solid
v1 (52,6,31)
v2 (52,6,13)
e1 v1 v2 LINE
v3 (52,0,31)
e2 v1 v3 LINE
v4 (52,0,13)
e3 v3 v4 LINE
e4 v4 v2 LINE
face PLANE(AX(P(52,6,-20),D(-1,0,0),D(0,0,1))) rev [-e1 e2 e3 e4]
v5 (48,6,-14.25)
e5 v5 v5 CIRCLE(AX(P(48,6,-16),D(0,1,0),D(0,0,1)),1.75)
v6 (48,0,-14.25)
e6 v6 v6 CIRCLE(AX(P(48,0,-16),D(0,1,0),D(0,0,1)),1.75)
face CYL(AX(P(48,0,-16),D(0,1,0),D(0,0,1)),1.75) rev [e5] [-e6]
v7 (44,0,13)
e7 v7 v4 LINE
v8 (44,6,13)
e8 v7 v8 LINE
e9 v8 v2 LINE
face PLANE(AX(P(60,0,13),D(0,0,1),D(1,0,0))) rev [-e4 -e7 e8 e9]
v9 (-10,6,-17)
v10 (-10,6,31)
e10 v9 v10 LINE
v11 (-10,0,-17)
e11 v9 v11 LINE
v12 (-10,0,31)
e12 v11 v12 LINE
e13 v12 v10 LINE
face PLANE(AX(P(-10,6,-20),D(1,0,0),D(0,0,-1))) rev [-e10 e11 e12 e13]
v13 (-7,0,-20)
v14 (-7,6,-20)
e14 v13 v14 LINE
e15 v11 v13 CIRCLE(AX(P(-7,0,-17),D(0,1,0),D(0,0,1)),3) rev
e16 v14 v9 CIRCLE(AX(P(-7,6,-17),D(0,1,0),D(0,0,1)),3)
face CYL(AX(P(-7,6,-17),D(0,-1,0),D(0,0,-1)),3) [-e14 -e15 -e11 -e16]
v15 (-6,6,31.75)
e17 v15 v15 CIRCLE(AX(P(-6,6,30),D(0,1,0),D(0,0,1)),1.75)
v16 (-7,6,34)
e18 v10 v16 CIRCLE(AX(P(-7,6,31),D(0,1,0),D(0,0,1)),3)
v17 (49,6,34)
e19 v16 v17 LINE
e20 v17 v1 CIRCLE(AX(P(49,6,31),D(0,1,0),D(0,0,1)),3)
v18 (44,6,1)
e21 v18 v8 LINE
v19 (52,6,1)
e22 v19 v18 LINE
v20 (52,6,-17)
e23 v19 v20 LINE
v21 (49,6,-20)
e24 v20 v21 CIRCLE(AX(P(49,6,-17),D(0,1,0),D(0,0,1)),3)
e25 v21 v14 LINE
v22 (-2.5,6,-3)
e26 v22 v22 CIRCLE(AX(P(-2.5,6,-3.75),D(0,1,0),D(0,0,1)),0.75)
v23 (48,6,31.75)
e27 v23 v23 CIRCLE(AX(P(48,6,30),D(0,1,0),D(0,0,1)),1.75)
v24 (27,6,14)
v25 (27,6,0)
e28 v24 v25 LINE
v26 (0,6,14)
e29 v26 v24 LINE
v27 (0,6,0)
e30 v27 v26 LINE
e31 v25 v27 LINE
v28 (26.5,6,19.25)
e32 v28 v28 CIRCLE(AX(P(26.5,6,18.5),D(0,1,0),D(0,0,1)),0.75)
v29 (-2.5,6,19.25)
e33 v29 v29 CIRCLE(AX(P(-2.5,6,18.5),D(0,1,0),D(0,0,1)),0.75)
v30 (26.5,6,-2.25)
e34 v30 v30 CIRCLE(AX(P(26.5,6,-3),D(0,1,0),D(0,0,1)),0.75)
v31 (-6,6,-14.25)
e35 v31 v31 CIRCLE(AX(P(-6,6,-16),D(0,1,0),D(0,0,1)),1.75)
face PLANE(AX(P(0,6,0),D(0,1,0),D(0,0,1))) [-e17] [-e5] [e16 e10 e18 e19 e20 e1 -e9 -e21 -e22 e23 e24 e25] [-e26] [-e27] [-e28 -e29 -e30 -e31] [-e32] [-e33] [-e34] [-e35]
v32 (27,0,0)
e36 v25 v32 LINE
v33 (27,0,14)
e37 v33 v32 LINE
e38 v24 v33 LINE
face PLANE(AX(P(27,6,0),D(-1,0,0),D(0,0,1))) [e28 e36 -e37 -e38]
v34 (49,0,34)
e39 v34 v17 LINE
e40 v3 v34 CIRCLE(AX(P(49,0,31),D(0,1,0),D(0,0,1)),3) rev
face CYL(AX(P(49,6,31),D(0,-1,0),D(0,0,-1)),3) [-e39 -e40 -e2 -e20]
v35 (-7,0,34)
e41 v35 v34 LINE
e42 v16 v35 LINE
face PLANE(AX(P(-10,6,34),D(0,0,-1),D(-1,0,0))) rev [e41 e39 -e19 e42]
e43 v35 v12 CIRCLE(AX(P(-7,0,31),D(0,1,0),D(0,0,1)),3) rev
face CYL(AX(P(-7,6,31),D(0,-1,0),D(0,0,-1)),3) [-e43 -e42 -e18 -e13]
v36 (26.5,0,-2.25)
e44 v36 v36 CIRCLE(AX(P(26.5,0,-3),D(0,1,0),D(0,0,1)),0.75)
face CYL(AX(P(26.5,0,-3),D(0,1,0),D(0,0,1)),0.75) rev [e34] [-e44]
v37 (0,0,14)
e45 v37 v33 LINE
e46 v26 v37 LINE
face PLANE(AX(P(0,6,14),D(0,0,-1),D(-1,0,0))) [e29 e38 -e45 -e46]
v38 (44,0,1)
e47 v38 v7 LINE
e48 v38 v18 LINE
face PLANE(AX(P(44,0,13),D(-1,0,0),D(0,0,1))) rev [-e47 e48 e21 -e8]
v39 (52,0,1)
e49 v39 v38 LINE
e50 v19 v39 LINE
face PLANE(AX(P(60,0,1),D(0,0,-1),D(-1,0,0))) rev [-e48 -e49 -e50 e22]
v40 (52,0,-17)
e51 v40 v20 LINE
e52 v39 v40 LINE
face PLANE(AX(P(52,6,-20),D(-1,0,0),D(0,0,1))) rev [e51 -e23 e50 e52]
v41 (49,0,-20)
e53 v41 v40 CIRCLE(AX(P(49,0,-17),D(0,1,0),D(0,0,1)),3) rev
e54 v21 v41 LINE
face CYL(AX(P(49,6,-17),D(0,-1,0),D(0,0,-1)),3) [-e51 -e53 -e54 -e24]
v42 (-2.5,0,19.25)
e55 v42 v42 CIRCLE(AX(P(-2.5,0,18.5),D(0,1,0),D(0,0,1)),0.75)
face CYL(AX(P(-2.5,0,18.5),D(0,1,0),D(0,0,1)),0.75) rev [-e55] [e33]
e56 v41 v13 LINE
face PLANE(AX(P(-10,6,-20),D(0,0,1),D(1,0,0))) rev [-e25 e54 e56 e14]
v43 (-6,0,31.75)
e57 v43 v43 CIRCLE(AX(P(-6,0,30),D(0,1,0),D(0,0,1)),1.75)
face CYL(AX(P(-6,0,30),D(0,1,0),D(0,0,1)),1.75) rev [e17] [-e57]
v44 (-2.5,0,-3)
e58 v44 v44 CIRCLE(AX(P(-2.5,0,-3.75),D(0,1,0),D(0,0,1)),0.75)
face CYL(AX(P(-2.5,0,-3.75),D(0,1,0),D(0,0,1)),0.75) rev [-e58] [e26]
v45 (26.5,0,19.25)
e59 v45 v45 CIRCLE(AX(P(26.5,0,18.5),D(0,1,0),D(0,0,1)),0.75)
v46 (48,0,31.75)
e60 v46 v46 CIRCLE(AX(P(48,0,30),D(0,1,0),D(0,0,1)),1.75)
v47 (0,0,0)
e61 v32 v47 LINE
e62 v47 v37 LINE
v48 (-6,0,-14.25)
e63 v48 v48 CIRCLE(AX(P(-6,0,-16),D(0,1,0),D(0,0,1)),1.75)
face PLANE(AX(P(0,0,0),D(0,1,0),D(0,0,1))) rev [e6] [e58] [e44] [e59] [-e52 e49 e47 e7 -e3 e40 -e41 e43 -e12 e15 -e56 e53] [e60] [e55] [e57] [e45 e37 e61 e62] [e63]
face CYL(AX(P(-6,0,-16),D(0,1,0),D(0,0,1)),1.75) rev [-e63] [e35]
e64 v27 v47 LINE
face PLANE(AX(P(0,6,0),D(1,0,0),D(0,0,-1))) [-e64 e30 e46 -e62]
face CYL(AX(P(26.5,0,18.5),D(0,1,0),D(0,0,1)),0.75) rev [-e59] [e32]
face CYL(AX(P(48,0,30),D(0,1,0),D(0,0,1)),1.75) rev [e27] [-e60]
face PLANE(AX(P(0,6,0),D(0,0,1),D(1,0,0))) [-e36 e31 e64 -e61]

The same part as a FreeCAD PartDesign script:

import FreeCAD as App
import Part
import Sketcher

V = App.Vector
Q = App.Units.Quantity


def edges_at(feature, points):
    """Names of the edges that pass closest to the given points."""
    edges = feature.Shape.Edges
    near = lambda p: min(range(len(edges)), key=lambda i: edges[i].distToShape(Part.Vertex(*p))[0])
    return sorted({f"Edge{near(p) + 1}" for p in points})


def add_polygon(sketch, points):
    """Adds a closed chain of lines whose ends are joined by coincident constraints."""
    first, n = sketch.GeometryCount, len(points)
    for a, b in zip(points, points[1:] + points[:1]):
        sketch.addGeometry(Part.LineSegment(App.Vector(*a, 0), App.Vector(*b, 0)), False)
    for i in range(n):
        sketch.addConstraint(Sketcher.Constraint("Coincident", first + i, 2, first + (i + 1) % n, 1))

doc = App.newDocument("Part")
body = doc.addObject("PartDesign::Body", "Body")

# Sketch on XZ plane
sketch1 = body.newObject("Sketcher::SketchObject", "Sketch")
sketch1.AttachmentSupport = (doc.getObject("XZ_Plane"), [""])
sketch1.MapMode = "FlatFace"
add_polygon(sketch1, [(-10, -20), (-10, 34), (52, 34), (52, -20)])  # lines 0-3
add_polygon(sketch1, [(27, 14), (0, 14), (0, 0), (27, 0)])  # lines 4-7
sketch1.addConstraint([
    Sketcher.Constraint("Vertical", 0),
    Sketcher.Constraint("Horizontal", 1),
    Sketcher.Constraint("Vertical", 2),
    Sketcher.Constraint("Horizontal", 3),
    Sketcher.Constraint("Horizontal", 4),
    Sketcher.Constraint("Vertical", 5),
    Sketcher.Constraint("Horizontal", 6),
    Sketcher.Constraint("Vertical", 7),
    Sketcher.Constraint("Coincident", 5, 2, -1, 1),
    Sketcher.Constraint("DistanceX", 1, 1, 1, 2, Q("62 mm")),
    Sketcher.Constraint("DistanceX", 4, 2, 4, 1, Q("27 mm")),
    Sketcher.Constraint("DistanceY", 0, 1, 0, 2, Q("54 mm")),
    Sketcher.Constraint("DistanceY", 5, 2, 5, 1, Q("14 mm")),
    Sketcher.Constraint("DistanceX", 0, 2, -1, 1, Q("10 mm")),
    Sketcher.Constraint("DistanceY", -1, 1, 0, 2, Q("34 mm")),
])
pad1 = body.newObject("PartDesign::Pad", "Pad")
pad1.Profile = sketch1
pad1.Length = 6
pad1.Reversed = True

# Sketch on XZ plane
sketch2 = body.newObject("Sketcher::SketchObject", "Sketch001")
sketch2.AttachmentSupport = (doc.getObject("XZ_Plane"), [""])
sketch2.MapMode = "FlatFace"
sketch2.AttachmentOffset = App.Placement(V(0, 0, -6), App.Rotation())
sketch2.addGeometry([
    Part.Circle(V(-2.5, -3.8, 0), V(0, 0, 1), 0.8),
    Part.Circle(V(-2.5, 18.5, 0), V(0, 0, 1), 0.8),
    Part.Circle(V(26.5, -3, 0), V(0, 0, 1), 0.8),
    Part.Circle(V(26.5, 18.5, 0), V(0, 0, 1), 0.8),
], False)
sketch2.addConstraint([
    Sketcher.Constraint("Equal", 0, 1),
    Sketcher.Constraint("Equal", 1, 2),
    Sketcher.Constraint("Equal", 2, 3),
    Sketcher.Constraint("Horizontal", 1, 3, 3, 3),
    Sketcher.Constraint("Vertical", 0, 3, 1, 3),
    Sketcher.Constraint("Vertical", 2, 3, 3, 3),
    Sketcher.Constraint("Diameter", 0, Q("1.5 mm")),
    Sketcher.Constraint("DistanceY", 2, 3, -1, 1, Q("3 mm")),
    Sketcher.Constraint("DistanceX", 0, 3, 2, 3, Q("29 mm")),
    Sketcher.Constraint("DistanceX", 0, 3, -1, 1, Q("2.5 mm")),
    Sketcher.Constraint("DistanceY", -1, 1, 1, 3, Q("18.5 mm")),
    Sketcher.Constraint("DistanceY", 0, 3, -1, 1, Q("3.75 mm")),
])
pocket1 = body.newObject("PartDesign::Pocket", "Pocket")
pocket1.Profile = sketch2
pocket1.Type = "ThroughAll"
pocket1.Reversed = True

# Sketch on XZ plane
sketch3 = body.newObject("Sketcher::SketchObject", "Sketch002")
sketch3.AttachmentSupport = (doc.getObject("XZ_Plane"), [""])
sketch3.MapMode = "FlatFace"
sketch3.AttachmentOffset = App.Placement(V(0, 0, -6), App.Rotation())
sketch3.addGeometry([
    Part.Circle(V(-6, -16, 0), V(0, 0, 1), 1.8),
    Part.Circle(V(-6, 30, 0), V(0, 0, 1), 1.8),
    Part.Circle(V(48, -16, 0), V(0, 0, 1), 1.8),
    Part.Circle(V(48, 30, 0), V(0, 0, 1), 1.8),
], False)
sketch3.addConstraint([
    Sketcher.Constraint("Equal", 0, 1),
    Sketcher.Constraint("Equal", 1, 2),
    Sketcher.Constraint("Equal", 2, 3),
    Sketcher.Constraint("Horizontal", 0, 3, 2, 3),
    Sketcher.Constraint("Horizontal", 1, 3, 3, 3),
    Sketcher.Constraint("Vertical", 0, 3, 1, 3),
    Sketcher.Constraint("Vertical", 2, 3, 3, 3),
    Sketcher.Constraint("Diameter", 0, Q("3.5 mm")),
    Sketcher.Constraint("DistanceX", 0, 3, -1, 1, Q("6 mm")),
    Sketcher.Constraint("DistanceY", 0, 3, -1, 1, Q("16 mm")),
    Sketcher.Constraint("DistanceY", -1, 1, 1, 3, Q("30 mm")),
    Sketcher.Constraint("DistanceX", -1, 1, 2, 3, Q("48 mm")),
])
pocket2 = body.newObject("PartDesign::Pocket", "Pocket001")
pocket2.Profile = sketch3
pocket2.Type = "ThroughAll"
pocket2.Reversed = True
doc.recompute()

fillet = body.newObject("PartDesign::Fillet", "Fillet")
fillet.Base = (pocket2, edges_at(pocket2, [
    (-10, 3, -20),
    (52, 3, -20),
    (52, 3, 34),
    (-10, 3, 34),
]))
fillet.Radius = 3

# Sketch on XZ plane
sketch4 = body.newObject("Sketcher::SketchObject", "Sketch003")
sketch4.AttachmentSupport = (doc.getObject("XZ_Plane"), [""])
sketch4.MapMode = "FlatFace"
sketch4.AttachmentOffset = App.Placement(V(0, 0, -6), App.Rotation())
add_polygon(sketch4, [(44, 1), (44, 13), (60, 13), (60, 1)])  # lines 0-3
sketch4.addConstraint([
    Sketcher.Constraint("Vertical", 0),
    Sketcher.Constraint("Horizontal", 1),
    Sketcher.Constraint("Vertical", 2),
    Sketcher.Constraint("Horizontal", 3),
    Sketcher.Constraint("DistanceX", 1, 1, 1, 2, Q("16 mm")),
    Sketcher.Constraint("DistanceY", 0, 1, 0, 2, Q("12 mm")),
    Sketcher.Constraint("DistanceX", -1, 1, 0, 2, Q("44 mm")),
    Sketcher.Constraint("DistanceY", -1, 1, 0, 2, Q("13 mm")),
])
pocket3 = body.newObject("PartDesign::Pocket", "Pocket002")
pocket3.Profile = sketch4
pocket3.Type = "ThroughAll"
pocket3.Reversed = True

doc.recompute()
